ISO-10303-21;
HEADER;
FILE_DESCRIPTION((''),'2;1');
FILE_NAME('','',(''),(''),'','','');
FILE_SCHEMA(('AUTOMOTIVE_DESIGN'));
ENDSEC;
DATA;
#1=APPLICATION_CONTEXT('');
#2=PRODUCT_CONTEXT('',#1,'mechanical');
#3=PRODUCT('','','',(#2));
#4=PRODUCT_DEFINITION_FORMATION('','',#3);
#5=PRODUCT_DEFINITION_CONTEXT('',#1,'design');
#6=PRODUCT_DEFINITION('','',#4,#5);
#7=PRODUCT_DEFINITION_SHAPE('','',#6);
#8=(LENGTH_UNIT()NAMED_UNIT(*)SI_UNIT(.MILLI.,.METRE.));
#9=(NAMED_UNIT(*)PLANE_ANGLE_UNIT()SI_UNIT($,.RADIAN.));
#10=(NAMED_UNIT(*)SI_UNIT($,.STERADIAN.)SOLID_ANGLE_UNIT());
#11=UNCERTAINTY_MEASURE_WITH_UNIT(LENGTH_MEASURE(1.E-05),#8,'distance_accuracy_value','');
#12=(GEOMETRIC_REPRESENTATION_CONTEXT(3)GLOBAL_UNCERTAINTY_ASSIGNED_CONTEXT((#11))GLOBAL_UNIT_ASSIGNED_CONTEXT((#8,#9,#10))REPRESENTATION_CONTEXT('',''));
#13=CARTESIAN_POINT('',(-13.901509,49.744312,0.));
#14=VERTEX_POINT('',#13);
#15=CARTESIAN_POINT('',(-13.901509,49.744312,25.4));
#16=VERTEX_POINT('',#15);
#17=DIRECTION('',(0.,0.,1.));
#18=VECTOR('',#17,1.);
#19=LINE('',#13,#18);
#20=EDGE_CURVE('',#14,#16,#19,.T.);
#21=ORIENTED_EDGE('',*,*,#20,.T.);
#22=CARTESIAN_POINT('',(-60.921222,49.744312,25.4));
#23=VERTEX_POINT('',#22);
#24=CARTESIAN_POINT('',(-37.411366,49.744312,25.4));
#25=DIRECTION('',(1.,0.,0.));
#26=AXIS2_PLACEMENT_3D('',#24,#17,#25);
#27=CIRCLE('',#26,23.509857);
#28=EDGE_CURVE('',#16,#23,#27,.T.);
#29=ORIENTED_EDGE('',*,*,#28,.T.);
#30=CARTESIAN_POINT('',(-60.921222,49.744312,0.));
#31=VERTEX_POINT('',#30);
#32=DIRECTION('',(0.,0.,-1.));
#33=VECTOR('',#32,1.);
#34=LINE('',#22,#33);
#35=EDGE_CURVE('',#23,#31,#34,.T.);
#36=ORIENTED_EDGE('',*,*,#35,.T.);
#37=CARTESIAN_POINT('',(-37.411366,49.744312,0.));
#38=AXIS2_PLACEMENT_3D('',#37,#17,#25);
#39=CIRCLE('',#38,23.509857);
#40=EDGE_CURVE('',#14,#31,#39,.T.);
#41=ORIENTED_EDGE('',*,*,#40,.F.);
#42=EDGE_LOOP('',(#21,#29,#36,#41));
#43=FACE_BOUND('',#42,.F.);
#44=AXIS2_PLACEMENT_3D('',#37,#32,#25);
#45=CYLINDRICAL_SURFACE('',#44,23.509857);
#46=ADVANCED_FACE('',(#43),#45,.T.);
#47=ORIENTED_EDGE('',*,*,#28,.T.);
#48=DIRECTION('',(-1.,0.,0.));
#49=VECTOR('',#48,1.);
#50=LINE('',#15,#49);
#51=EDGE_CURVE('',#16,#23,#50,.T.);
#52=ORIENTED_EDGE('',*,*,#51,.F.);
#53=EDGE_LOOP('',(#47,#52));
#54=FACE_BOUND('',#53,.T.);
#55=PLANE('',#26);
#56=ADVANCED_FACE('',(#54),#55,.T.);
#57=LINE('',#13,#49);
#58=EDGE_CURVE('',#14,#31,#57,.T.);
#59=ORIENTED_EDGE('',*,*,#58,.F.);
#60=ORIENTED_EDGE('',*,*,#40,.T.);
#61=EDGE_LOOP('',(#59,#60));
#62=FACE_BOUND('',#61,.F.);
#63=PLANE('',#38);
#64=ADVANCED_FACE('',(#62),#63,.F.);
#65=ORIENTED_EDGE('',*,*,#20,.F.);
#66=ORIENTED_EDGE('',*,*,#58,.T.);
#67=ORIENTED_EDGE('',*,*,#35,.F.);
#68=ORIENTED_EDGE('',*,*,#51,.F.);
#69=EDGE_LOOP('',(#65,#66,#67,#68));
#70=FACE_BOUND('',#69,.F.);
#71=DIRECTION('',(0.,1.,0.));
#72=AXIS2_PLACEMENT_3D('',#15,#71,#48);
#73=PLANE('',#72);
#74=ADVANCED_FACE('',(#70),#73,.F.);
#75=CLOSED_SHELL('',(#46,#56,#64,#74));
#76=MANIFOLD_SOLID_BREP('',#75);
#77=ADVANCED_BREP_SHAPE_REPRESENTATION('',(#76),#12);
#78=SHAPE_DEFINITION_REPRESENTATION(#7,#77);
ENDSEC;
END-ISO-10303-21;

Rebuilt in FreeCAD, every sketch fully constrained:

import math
import FreeCAD as App
import Part
import Sketcher

V = App.Vector
Q = App.Units.Quantity

doc = App.newDocument("Part")
body = doc.addObject("PartDesign::Body", "Body")

sketch1 = body.newObject("Sketcher::SketchObject", "Sketch")
sketch1.AttachmentSupport = (doc.getObject("XY_Plane"), [""])
sketch1.MapMode = "FlatFace"
sketch1.addGeometry(Part.Circle(V(-37, 50, 0), V(0, 0, 1), 24), False)
sketch1.addConstraint(Sketcher.Constraint("Diameter", 0, 47.019713))
sketch1.addConstraint(Sketcher.Constraint("DistanceY", -1, 1, 0, 3, 49.744312))
sketch1.addConstraint(Sketcher.Constraint("DistanceX", 0, 3, -1, 1, 37.411366))
pad1 = body.newObject("PartDesign::Pad", "Pad")
pad1.Profile = sketch1
pad1.Length = Q("1 in")

sketch2 = body.newObject("Sketcher::SketchObject", "Sketch001")
sketch2.AttachmentSupport = (doc.getObject("XY_Plane"), [""])
sketch2.MapMode = "FlatFace"
sketch2.AttachmentOffset = App.Placement(V(0, 0, 1 * 25.4), App.Rotation())
sketch2.addGeometry(Part.LineSegment(V(-14, 50, 0), V(-61, 50, 0)), False)
sketch2.addGeometry(Part.ArcOfCircle(Part.Circle(V(-37, 50, 0), V(0, 0, 1), 24), math.radians(180), math.radians(360)), False)
sketch2.addConstraint(Sketcher.Constraint("Coincident", 0, 1, 1, 2))
sketch2.addConstraint(Sketcher.Constraint("Coincident", 1, 1, 0, 2))
sketch2.addConstraint(Sketcher.Constraint("Horizontal", 0))
sketch2.addConstraint(Sketcher.Constraint("Horizontal", 1, 3, 0, 1))
sketch2.addConstraint(Sketcher.Constraint("Radius", 1, 23.509857))
sketch2.addConstraint(Sketcher.Constraint("DistanceY", -1, 1, 1, 3, 49.744312))
sketch2.addConstraint(Sketcher.Constraint("DistanceX", 0, 1, -1, 1, 13.901509))
pocket1 = body.newObject("PartDesign::Pocket", "Pocket")
pocket1.Profile = sketch2
pocket1.Length = Q("1 in")

doc.recompute()
